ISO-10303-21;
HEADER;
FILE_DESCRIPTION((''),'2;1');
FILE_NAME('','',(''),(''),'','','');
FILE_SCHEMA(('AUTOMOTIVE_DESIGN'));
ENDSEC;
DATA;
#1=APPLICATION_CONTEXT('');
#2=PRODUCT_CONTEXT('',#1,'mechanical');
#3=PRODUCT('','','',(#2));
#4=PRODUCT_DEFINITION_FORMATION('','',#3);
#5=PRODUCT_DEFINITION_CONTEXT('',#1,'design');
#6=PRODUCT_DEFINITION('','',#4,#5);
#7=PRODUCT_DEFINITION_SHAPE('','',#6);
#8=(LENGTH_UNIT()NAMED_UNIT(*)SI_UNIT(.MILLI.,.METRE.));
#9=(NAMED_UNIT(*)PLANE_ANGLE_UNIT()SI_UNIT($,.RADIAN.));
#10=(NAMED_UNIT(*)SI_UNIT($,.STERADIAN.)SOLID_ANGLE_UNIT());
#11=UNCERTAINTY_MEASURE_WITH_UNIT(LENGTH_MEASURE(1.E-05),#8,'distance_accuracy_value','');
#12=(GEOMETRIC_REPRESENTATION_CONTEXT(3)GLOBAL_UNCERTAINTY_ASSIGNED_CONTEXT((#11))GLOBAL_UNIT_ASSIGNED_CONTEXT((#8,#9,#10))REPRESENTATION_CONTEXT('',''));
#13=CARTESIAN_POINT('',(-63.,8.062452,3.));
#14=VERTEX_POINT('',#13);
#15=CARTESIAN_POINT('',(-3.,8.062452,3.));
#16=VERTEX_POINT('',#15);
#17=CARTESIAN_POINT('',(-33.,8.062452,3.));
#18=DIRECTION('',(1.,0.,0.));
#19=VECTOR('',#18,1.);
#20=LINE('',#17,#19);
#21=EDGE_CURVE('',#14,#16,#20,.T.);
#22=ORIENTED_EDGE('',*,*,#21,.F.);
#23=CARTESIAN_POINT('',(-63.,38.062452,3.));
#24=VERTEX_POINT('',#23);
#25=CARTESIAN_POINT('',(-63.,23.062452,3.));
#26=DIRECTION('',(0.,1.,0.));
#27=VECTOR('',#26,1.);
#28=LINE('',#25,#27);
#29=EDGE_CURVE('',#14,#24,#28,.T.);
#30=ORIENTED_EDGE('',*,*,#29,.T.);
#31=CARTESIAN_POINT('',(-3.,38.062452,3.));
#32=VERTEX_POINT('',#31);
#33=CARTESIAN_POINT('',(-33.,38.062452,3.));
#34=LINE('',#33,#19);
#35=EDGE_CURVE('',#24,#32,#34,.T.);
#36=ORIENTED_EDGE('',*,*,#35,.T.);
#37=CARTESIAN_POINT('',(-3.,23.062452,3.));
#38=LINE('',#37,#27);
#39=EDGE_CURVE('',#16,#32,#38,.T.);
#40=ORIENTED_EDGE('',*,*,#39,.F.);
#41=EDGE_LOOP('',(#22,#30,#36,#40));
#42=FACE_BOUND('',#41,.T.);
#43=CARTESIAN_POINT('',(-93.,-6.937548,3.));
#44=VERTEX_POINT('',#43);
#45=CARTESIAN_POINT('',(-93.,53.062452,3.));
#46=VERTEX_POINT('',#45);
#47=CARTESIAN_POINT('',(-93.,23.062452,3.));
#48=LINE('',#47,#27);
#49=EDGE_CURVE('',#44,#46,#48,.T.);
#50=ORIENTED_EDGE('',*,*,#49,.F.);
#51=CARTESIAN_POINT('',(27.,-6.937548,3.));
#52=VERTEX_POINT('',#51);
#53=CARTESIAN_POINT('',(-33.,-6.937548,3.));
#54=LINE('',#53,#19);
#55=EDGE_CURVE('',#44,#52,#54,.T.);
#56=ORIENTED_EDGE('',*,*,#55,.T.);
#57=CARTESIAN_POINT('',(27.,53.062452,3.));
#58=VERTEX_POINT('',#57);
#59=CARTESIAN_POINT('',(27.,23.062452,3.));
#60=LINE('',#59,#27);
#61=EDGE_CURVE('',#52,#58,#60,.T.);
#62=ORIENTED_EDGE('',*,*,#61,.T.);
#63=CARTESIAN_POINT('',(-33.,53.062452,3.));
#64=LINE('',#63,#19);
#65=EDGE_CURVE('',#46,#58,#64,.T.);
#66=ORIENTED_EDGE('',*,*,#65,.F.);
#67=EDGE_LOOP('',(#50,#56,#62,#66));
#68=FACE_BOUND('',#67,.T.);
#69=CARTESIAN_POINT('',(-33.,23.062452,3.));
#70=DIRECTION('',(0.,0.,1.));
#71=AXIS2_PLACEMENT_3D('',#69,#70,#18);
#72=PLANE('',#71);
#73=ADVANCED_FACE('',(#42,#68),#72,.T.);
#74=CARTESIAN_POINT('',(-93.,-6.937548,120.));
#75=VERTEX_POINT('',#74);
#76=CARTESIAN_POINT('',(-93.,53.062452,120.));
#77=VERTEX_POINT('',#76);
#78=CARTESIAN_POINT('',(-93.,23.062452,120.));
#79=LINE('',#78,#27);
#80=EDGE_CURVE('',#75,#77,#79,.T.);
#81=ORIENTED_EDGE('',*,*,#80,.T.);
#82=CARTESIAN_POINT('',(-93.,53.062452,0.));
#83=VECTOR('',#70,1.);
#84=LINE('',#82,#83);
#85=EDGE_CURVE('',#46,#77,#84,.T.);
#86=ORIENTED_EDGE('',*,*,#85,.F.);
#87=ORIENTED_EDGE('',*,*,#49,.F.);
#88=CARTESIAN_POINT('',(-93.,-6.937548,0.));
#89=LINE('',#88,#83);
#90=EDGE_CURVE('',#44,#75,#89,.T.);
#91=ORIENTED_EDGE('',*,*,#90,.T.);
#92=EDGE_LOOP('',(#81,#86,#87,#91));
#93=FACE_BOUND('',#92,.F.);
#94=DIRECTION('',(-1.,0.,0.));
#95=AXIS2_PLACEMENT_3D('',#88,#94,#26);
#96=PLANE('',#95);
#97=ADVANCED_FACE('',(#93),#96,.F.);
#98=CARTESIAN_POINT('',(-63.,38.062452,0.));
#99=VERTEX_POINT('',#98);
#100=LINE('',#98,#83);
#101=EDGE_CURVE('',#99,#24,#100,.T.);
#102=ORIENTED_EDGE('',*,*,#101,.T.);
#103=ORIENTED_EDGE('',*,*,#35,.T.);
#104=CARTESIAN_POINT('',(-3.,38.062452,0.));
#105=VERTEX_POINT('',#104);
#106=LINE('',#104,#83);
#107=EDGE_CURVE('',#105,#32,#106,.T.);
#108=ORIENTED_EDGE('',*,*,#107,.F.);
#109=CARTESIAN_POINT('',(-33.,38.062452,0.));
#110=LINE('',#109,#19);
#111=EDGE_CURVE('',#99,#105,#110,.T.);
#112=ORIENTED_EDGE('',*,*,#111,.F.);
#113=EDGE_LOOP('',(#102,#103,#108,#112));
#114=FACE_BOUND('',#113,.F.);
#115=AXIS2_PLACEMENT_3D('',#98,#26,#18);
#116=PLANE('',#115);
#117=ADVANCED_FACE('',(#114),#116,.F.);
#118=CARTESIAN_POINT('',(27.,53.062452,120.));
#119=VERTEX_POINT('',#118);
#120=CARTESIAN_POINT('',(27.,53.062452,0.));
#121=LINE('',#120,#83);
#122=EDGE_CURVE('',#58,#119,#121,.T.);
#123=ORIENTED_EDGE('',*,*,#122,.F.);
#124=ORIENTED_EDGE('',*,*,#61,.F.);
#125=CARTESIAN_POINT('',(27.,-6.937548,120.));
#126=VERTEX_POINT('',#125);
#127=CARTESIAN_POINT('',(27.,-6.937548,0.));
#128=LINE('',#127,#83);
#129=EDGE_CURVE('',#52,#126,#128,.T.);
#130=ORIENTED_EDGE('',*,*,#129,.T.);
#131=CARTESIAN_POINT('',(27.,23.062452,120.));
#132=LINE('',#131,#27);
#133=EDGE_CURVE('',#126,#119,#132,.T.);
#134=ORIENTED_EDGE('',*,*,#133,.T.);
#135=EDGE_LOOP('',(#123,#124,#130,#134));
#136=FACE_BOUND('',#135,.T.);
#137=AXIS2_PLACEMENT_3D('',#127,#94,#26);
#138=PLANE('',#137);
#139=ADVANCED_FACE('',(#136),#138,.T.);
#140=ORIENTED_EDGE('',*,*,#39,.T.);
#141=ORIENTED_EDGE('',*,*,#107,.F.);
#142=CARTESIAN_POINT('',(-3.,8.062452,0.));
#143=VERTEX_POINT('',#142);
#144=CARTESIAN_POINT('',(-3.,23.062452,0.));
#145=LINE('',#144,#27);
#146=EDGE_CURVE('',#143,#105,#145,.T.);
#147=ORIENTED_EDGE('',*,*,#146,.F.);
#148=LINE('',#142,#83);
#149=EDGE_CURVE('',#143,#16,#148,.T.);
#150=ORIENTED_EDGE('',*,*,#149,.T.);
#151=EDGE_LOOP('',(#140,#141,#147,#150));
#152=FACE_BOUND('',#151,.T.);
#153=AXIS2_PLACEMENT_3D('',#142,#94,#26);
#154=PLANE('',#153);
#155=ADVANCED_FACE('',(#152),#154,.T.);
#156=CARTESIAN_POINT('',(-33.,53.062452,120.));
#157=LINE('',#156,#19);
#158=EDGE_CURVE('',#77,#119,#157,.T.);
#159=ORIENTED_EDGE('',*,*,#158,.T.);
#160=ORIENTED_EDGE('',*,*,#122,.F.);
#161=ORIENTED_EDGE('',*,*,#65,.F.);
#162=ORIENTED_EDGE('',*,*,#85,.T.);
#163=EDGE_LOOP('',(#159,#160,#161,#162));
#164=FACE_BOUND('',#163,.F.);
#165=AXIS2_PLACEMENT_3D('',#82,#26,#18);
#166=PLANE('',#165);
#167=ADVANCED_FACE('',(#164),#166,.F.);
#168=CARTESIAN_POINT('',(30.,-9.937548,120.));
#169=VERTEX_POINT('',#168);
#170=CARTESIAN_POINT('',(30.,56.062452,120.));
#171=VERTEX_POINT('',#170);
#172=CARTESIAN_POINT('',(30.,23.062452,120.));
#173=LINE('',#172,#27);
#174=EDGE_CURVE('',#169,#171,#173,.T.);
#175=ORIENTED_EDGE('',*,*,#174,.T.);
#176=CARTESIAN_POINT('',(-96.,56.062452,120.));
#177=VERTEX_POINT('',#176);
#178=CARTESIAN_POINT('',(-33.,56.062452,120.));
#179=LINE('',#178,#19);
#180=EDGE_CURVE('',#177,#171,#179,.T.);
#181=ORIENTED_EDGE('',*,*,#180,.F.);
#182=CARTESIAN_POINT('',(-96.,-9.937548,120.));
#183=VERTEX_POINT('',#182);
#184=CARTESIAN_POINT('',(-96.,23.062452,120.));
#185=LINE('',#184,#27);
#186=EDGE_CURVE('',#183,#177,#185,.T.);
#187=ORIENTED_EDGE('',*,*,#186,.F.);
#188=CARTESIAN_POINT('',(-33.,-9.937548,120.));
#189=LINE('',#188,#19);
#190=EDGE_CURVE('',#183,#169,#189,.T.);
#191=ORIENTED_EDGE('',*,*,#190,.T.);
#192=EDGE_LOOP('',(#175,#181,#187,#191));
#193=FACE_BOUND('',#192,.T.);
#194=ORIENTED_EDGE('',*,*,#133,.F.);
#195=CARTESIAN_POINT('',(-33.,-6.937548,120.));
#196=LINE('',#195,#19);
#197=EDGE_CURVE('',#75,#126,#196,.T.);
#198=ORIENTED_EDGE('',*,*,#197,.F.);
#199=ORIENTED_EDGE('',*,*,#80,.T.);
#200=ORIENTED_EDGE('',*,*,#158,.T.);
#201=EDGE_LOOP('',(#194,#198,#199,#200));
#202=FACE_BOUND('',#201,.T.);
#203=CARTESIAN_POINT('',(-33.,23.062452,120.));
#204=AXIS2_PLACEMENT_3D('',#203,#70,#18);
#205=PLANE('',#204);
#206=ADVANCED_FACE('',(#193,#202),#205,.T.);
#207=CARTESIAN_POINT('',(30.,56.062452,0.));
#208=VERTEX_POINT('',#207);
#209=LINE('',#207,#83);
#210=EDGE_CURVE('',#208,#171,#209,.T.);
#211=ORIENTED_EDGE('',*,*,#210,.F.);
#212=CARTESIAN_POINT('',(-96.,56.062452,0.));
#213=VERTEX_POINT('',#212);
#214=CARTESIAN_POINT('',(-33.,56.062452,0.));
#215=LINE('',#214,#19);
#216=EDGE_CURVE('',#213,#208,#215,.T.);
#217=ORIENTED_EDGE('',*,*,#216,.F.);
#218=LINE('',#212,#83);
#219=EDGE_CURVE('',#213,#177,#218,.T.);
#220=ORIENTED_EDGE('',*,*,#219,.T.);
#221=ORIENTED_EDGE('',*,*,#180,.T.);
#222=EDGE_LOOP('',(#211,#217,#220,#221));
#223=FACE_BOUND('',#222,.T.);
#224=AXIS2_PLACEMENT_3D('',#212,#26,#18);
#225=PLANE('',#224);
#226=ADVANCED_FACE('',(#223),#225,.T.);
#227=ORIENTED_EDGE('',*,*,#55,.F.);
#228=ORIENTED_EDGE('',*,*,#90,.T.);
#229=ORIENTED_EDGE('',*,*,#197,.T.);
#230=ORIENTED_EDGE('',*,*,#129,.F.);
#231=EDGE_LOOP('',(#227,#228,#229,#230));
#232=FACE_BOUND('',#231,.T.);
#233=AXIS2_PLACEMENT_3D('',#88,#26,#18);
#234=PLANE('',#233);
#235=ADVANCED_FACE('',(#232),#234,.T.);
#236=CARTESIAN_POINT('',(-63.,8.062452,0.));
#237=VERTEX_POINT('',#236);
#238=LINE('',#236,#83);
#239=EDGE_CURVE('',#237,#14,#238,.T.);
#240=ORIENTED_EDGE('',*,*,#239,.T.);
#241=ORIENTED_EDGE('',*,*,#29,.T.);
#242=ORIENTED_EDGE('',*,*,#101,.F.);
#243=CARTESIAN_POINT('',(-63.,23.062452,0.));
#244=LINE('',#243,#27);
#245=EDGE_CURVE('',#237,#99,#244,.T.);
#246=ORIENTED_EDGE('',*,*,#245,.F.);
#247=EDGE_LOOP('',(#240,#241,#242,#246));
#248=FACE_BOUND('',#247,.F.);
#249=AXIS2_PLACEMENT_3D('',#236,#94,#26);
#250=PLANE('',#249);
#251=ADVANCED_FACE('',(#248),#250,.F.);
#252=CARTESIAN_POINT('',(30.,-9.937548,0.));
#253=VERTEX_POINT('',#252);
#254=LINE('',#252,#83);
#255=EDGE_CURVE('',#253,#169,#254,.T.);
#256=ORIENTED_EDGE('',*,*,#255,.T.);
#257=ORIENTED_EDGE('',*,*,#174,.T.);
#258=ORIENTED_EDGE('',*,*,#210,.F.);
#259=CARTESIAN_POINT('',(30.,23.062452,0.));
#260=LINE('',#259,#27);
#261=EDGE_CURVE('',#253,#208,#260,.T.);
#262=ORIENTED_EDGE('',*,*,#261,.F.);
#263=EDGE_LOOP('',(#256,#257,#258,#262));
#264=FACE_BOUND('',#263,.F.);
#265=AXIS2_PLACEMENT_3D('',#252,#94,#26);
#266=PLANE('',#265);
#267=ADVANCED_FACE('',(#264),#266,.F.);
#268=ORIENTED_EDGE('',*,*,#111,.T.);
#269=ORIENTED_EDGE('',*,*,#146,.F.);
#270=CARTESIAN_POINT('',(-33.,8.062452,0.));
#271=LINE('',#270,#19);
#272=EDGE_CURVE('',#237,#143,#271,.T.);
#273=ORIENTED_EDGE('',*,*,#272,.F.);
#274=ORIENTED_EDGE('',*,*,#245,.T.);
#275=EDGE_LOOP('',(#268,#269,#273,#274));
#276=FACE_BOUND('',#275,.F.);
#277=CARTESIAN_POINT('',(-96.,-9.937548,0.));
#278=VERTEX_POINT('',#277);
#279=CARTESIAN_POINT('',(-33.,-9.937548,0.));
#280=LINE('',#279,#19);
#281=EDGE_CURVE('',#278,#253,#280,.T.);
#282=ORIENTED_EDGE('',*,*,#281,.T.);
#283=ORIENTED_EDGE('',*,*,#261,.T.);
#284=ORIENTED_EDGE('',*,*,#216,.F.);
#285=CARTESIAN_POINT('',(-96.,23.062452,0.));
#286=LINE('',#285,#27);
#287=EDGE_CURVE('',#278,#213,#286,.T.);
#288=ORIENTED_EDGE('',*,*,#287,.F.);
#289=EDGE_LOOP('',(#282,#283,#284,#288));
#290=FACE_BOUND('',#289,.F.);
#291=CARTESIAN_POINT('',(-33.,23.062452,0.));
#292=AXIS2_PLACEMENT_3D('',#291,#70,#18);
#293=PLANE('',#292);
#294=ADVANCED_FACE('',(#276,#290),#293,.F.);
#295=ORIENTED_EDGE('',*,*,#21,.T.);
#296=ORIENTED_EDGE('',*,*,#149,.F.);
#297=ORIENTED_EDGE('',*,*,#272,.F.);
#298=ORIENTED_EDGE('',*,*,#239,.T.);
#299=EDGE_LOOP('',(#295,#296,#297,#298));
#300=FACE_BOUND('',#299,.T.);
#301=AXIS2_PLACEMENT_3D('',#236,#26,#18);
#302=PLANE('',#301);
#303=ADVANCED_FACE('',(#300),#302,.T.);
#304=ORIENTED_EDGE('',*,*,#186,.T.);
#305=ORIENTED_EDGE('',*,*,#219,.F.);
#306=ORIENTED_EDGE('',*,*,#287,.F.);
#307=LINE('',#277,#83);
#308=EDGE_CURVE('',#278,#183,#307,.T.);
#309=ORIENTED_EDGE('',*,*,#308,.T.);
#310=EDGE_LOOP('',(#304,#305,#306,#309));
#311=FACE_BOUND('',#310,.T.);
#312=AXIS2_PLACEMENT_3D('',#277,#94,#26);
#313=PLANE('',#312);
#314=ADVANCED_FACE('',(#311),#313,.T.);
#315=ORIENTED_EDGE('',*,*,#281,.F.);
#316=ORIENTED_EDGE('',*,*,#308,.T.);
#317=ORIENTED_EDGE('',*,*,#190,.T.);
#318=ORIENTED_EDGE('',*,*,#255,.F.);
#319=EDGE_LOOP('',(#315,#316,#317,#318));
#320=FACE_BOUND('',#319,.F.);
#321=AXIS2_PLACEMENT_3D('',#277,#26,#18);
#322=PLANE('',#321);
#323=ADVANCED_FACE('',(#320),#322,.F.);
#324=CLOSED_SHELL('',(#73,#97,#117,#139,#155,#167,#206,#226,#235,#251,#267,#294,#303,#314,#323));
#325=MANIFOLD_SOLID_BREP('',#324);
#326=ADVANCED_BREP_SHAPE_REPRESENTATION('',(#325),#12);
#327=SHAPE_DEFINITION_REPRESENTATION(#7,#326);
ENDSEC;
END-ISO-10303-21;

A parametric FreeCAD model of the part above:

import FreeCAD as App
import Part
import Sketcher

V = App.Vector

doc = App.newDocument("Part")
body = doc.addObject("PartDesign::Body", "Body")

# Sketch on XY plane
sketch1 = doc.addObject("Sketcher::SketchObject", "Sketch")
body.addObject(sketch1)
sketch1.AttachmentSupport = (doc.XY_Plane, [""])
sketch1.MapMode = "FlatFace"
sketch1.addGeometry([
    Part.LineSegment(V(-96, 56, 0), V(-96, -10, 0)),  # 0
    Part.LineSegment(V(-96, -10, 0), V(30, -10, 0)),  # 1
    Part.LineSegment(V(30, -10, 0), V(30, 56, 0)),  # 2
    Part.LineSegment(V(30, 56, 0), V(-96, 56, 0)),  # 3
    Part.LineSegment(V(27, -7, 0), V(-93, -7, 0)),  # 4
    Part.LineSegment(V(-93, -7, 0), V(-93, 53, 0)),  # 5
    Part.LineSegment(V(-93, 53, 0), V(27, 53, 0)),  # 6
    Part.LineSegment(V(27, 53, 0), V(27, -7, 0)),  # 7
], False)
sketch1.addConstraint([
    Sketcher.Constraint("Coincident", 0, 2, 1, 1),
    Sketcher.Constraint("Coincident", 1, 2, 2, 1),
    Sketcher.Constraint("Coincident", 2, 2, 3, 1),
    Sketcher.Constraint("Coincident", 3, 2, 0, 1),
    Sketcher.Constraint("Coincident", 4, 2, 5, 1),
    Sketcher.Constraint("Coincident", 5, 2, 6, 1),
    Sketcher.Constraint("Coincident", 6, 2, 7, 1),
    Sketcher.Constraint("Coincident", 7, 2, 4, 1),
    Sketcher.Constraint("Vertical", 0),
    Sketcher.Constraint("Horizontal", 1),
    Sketcher.Constraint("Vertical", 2),
    Sketcher.Constraint("Horizontal", 3),
    Sketcher.Constraint("Horizontal", 4),
    Sketcher.Constraint("Vertical", 5),
    Sketcher.Constraint("Horizontal", 6),
    Sketcher.Constraint("Vertical", 7),
    Sketcher.Constraint("DistanceX", 1, 1, 1, 2, 126.0),
    Sketcher.Constraint("DistanceX", 4, 2, 4, 1, 120.0),
    Sketcher.Constraint("DistanceY", 0, 2, 0, 1, 66.0),
    Sketcher.Constraint("DistanceY", 5, 1, 5, 2, 60.0),
    Sketcher.Constraint("DistanceX", 0, 2, -1, 1, 96.0),
    Sketcher.Constraint("DistanceX", 4, 2, -1, 1, 93.0),
    Sketcher.Constraint("DistanceY", 0, 2, 4, 2, 3.0),
    Sketcher.Constraint("DistanceY", 0, 2, -1, 1, 9.937548),
])
pad1 = doc.addObject("PartDesign::Pad", "Pad")
body.addObject(pad1)
pad1.Profile = sketch1
pad1.Length = 120

# Sketch on XY plane
sketch2 = doc.addObject("Sketcher::SketchObject", "Sketch001")
body.addObject(sketch2)
sketch2.AttachmentSupport = (doc.XY_Plane, [""])
sketch2.MapMode = "FlatFace"
sketch2.addGeometry([
    Part.LineSegment(V(-93, 53, 0), V(-93, -7, 0)),  # 0
    Part.LineSegment(V(-93, -7, 0), V(27, -7, 0)),  # 1
    Part.LineSegment(V(27, -7, 0), V(27, 53, 0)),  # 2
    Part.LineSegment(V(27, 53, 0), V(-93, 53, 0)),  # 3
    Part.LineSegment(V(-3, 8, 0), V(-63, 8, 0)),  # 4
    Part.LineSegment(V(-63, 8, 0), V(-63, 38, 0)),  # 5
    Part.LineSegment(V(-63, 38, 0), V(-3, 38, 0)),  # 6
    Part.LineSegment(V(-3, 38, 0), V(-3, 8, 0)),  # 7
], False)
sketch2.addConstraint([
    Sketcher.Constraint("Coincident", 0, 2, 1, 1),
    Sketcher.Constraint("Coincident", 1, 2, 2, 1),
    Sketcher.Constraint("Coincident", 2, 2, 3, 1),
    Sketcher.Constraint("Coincident", 3, 2, 0, 1),
    Sketcher.Constraint("Coincident", 4, 2, 5, 1),
    Sketcher.Constraint("Coincident", 5, 2, 6, 1),
    Sketcher.Constraint("Coincident", 6, 2, 7, 1),
    Sketcher.Constraint("Coincident", 7, 2, 4, 1),
    Sketcher.Constraint("Vertical", 0),
    Sketcher.Constraint("Horizontal", 1),
    Sketcher.Constraint("Vertical", 2),
    Sketcher.Constraint("Horizontal", 3),
    Sketcher.Constraint("Horizontal", 4),
    Sketcher.Constraint("Vertical", 5),
    Sketcher.Constraint("Horizontal", 6),
    Sketcher.Constraint("Vertical", 7),
    Sketcher.Constraint("Equal", 6, 0),
    Sketcher.Constraint("DistanceX", 1, 1, 1, 2, 120.0),
    Sketcher.Constraint("DistanceX", 4, 2, 4, 1, 60.0),
    Sketcher.Constraint("DistanceY", 5, 1, 5, 2, 30.0),
    Sketcher.Constraint("DistanceX", 0, 2, -1, 1, 93.0),
    Sketcher.Constraint("DistanceX", 4, 2, -1, 1, 63.0),
    Sketcher.Constraint("DistanceY", 0, 2, 4, 2, 15.0),
    Sketcher.Constraint("DistanceY", 0, 2, -1, 1, 6.937548),
])
pad2 = doc.addObject("PartDesign::Pad", "Pad001")
body.addObject(pad2)
pad2.Profile = sketch2
pad2.Length = 3

doc.recompute()
